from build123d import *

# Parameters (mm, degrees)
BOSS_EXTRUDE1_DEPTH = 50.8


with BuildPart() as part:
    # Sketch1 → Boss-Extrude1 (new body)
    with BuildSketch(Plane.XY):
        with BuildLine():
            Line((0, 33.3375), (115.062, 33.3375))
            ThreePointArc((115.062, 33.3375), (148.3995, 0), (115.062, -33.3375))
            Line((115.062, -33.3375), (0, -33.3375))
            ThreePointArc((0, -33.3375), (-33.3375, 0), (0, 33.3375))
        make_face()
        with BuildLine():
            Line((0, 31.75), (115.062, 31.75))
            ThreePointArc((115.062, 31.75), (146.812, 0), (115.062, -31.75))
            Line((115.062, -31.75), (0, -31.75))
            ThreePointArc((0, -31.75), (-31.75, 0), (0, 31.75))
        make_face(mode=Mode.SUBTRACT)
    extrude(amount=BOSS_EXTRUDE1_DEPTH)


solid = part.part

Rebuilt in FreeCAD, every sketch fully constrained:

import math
import FreeCAD as App
import Part
import Sketcher
from FreeCAD import Vector
Q = App.Units.Quantity

doc = App.newDocument("Part")
params = doc.addObject("Spreadsheet::Sheet", "Params")
for row, (alias, value) in enumerate([
    ("sketch1_radius", "1.25 in"),
    ("sketch1_radius2", "1.3125 in"),
    ("sketch1_width", "4.53 in"),
    ("pad1_length", "2 in"),
], start=1):
    params.set(f"A{row}", alias)
    params.set(f"B{row}", "=" + value)
    params.setAlias(f"B{row}", alias)

body = doc.addObject("PartDesign::Body", "Body")

# Sketch on XY plane
sketch1 = body.newObject("Sketcher::SketchObject", "Sketch")
sketch1.AttachmentSupport = (doc.getObject("XY_Plane"), [""])
sketch1.MapMode = "FlatFace"
sketch1.addGeometry([
    Part.LineSegment(Vector(115, 33, 0), Vector(0, 33, 0)),  # 0
    Part.ArcOfCircle(Part.Circle(Vector(0, 0, 0), Vector(0, 0, 1), 33), math.radians(90), math.radians(270)),  # 1
    Part.LineSegment(Vector(0, -33, 0), Vector(115, -33, 0)),  # 2
    Part.ArcOfCircle(Part.Circle(Vector(115, 0, 0), Vector(0, 0, 1), 33), math.radians(-90), math.radians(90)),  # 3
    Part.LineSegment(Vector(0, 32, 0), Vector(115, 32, 0)),  # 4
    Part.ArcOfCircle(Part.Circle(Vector(115, 0, 0), Vector(0, 0, 1), 32), math.radians(-90), math.radians(90)),  # 5
    Part.LineSegment(Vector(115, -32, 0), Vector(0, -32, 0)),  # 6
    Part.ArcOfCircle(Part.Circle(Vector(0, 0, 0), Vector(0, 0, 1), 32), math.radians(90), math.radians(270)),  # 7
], False)
sketch1.addConstraint([
    Sketcher.Constraint("Tangent", 0, 2, 1, 1),
    Sketcher.Constraint("Tangent", 1, 2, 2, 1),
    Sketcher.Constraint("Tangent", 2, 2, 3, 1),
    Sketcher.Constraint("Tangent", 3, 2, 0, 1),
    Sketcher.Constraint("Tangent", 4, 2, 5, 2),
    Sketcher.Constraint("Tangent", 5, 1, 6, 1),
    Sketcher.Constraint("Tangent", 6, 2, 7, 2),
    Sketcher.Constraint("Tangent", 7, 1, 4, 1),
    Sketcher.Constraint("Horizontal", 0),
    Sketcher.Constraint("Horizontal", 2),
    Sketcher.Constraint("Horizontal", 4),
    Sketcher.Constraint("Horizontal", 6),
    Sketcher.Constraint("Coincident", 1, 3, -1, 1),
    Sketcher.Constraint("Coincident", 7, 3, -1, 1),
    Sketcher.Constraint("Vertical", 5, 3, 2, 2),
    Sketcher.Constraint("Radius", 5, Q("1.25 in")),
    Sketcher.Constraint("Radius", 1, Q("1.3125 in")),
    Sketcher.Constraint("DistanceX", 0, 2, 0, 1, Q("4.53 in")),
])
sketch1.setExpression("Constraints[15]", "Params.sketch1_radius")
sketch1.setExpression("Constraints[16]", "Params.sketch1_radius2")
sketch1.setExpression("Constraints[17]", "Params.sketch1_width")
pad1 = body.newObject("PartDesign::Pad", "Pad")
pad1.Profile = sketch1
pad1.setExpression("Length", "Params.pad1_length")

doc.recompute()
